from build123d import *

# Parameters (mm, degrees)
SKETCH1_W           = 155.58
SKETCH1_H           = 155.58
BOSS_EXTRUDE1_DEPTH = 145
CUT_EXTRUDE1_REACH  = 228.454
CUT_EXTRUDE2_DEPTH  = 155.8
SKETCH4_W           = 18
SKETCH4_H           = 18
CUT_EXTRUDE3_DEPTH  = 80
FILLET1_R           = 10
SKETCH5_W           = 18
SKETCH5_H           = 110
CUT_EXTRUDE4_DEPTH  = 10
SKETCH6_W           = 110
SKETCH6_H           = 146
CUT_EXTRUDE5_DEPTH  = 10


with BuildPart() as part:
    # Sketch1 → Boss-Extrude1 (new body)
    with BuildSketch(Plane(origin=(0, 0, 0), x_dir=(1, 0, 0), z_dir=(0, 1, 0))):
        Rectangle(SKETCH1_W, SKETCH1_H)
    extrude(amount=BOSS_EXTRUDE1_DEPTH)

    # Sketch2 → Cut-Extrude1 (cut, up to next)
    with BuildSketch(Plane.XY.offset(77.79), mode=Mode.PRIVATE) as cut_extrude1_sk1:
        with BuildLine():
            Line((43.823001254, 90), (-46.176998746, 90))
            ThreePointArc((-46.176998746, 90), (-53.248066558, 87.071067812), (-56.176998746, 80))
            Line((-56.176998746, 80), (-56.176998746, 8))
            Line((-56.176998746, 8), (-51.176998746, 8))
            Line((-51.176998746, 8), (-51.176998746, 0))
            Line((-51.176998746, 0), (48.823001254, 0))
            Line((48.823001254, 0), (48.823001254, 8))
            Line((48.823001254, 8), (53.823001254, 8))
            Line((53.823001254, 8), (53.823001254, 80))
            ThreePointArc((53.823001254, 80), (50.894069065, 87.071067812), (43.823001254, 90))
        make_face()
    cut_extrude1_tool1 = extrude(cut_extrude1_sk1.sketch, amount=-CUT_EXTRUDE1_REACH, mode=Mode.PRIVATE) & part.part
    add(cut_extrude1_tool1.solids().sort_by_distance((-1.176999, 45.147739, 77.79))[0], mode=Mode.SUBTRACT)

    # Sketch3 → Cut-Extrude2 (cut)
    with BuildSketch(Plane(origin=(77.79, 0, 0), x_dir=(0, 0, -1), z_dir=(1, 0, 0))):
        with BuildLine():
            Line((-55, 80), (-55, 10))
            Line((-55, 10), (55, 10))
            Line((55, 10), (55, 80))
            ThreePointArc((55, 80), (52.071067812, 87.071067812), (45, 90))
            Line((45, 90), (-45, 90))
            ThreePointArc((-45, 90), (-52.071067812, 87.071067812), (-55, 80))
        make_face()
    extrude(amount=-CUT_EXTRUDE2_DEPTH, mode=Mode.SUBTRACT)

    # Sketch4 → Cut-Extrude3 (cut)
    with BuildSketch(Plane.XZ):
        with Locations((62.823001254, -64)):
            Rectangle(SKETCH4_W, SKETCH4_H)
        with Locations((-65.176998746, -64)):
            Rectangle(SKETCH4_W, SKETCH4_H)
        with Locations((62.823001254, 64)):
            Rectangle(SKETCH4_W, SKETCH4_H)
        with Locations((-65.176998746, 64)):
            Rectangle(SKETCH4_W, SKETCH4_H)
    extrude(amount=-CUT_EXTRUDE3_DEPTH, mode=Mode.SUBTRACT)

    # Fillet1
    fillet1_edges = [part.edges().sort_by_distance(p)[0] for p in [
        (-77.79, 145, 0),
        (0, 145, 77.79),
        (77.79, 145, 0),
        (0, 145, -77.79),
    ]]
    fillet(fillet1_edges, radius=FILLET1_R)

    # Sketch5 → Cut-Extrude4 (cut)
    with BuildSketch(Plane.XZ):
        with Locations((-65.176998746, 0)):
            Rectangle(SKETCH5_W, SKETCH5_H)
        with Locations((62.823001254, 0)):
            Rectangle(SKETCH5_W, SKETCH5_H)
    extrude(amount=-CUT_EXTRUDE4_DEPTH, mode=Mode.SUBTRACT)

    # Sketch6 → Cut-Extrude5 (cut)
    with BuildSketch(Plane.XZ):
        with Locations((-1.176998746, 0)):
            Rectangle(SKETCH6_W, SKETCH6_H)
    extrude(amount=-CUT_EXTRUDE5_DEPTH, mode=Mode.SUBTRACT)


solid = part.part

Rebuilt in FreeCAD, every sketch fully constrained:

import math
import FreeCAD as App
import Part
import Sketcher
from FreeCAD import Vector
Q = App.Units.Quantity


def edges_at(feature, points):
    """Names of the edges that pass closest to the given points."""
    edges = feature.Shape.Edges
    near = lambda p: min(range(len(edges)), key=lambda i: edges[i].distToShape(Part.Vertex(*p))[0])
    return sorted({f"Edge{near(p) + 1}" for p in points})

doc = App.newDocument("Part")
body = doc.addObject("PartDesign::Body", "Body")

sketch1 = body.newObject("Sketcher::SketchObject", "Sketch")
sketch1.AttachmentSupport = (doc.getObject("XZ_Plane"), [""])
sketch1.MapMode = "FlatFace"
sketch1.addGeometry([
    Part.LineSegment(Vector(-78, -78, 0), Vector(-78, 78, 0)),
    Part.LineSegment(Vector(-78, 78, 0), Vector(78, 78, 0)),
    Part.LineSegment(Vector(78, 78, 0), Vector(78, -78, 0)),
    Part.LineSegment(Vector(78, -78, 0), Vector(-78, -78, 0)),
], False)
sketch1.addConstraint([
    Sketcher.Constraint("Coincident", 0, 2, 1, 1),
    Sketcher.Constraint("Coincident", 1, 2, 2, 1),
    Sketcher.Constraint("Coincident", 2, 2, 3, 1),
    Sketcher.Constraint("Coincident", 3, 2, 0, 1),
    Sketcher.Constraint("Vertical", 0),
    Sketcher.Constraint("Horizontal", 1),
    Sketcher.Constraint("Vertical", 2),
    Sketcher.Constraint("Horizontal", 3),
    Sketcher.Constraint("Symmetric", 0, 2, 2, 2, -1, 1),
    Sketcher.Constraint("Equal", 3, 0),
    Sketcher.Constraint("DistanceX", 1, 1, 1, 2, Q("155.58 mm")),
])
pad1 = body.newObject("PartDesign::Pad", "Pad")
pad1.Profile = sketch1
pad1.Length = 145
pad1.Reversed = True

sketch2 = body.newObject("Sketcher::SketchObject", "Sketch001")
sketch2.AttachmentSupport = (doc.getObject("XY_Plane"), [""])
sketch2.MapMode = "FlatFace"
sketch2.AttachmentOffset = App.Placement(Vector(0, 0, 77.79), App.Rotation())
sketch2.addGeometry([
    Part.LineSegment(Vector(44, 90, 0), Vector(-46, 90, 0)),
    Part.ArcOfCircle(Part.Circle(Vector(-46, 80, 0), Vector(0, 0, 1), 10), math.radians(90), math.radians(180)),
    Part.LineSegment(Vector(-56, 80, 0), Vector(-56, 8, 0)),
    Part.LineSegment(Vector(-56, 8, 0), Vector(-51, 8, 0)),
    Part.LineSegment(Vector(-51, 8, 0), Vector(-51, 0, 0)),
    Part.LineSegment(Vector(-51, 0, 0), Vector(49, 0, 0)),
    Part.LineSegment(Vector(49, 0, 0), Vector(49, 8, 0)),
    Part.LineSegment(Vector(49, 8, 0), Vector(54, 8, 0)),
    Part.LineSegment(Vector(54, 8, 0), Vector(54, 80, 0)),
    Part.ArcOfCircle(Part.Circle(Vector(44, 80, 0), Vector(0, 0, 1), 10), math.radians(0), math.radians(90)),
], False)
sketch2.addConstraint([
    Sketcher.Constraint("Tangent", 0, 2, 1, 1),
    Sketcher.Constraint("Tangent", 1, 2, 2, 1),
    Sketcher.Constraint("Coincident", 2, 2, 3, 1),
    Sketcher.Constraint("Coincident", 3, 2, 4, 1),
    Sketcher.Constraint("Coincident", 4, 2, 5, 1),
    Sketcher.Constraint("Coincident", 5, 2, 6, 1),
    Sketcher.Constraint("Coincident", 6, 2, 7, 1),
    Sketcher.Constraint("Coincident", 7, 2, 8, 1),
    Sketcher.Constraint("Tangent", 8, 2, 9, 1),
    Sketcher.Constraint("Tangent", 9, 2, 0, 1),
    Sketcher.Constraint("Horizontal", 0),
    Sketcher.Constraint("Vertical", 2),
    Sketcher.Constraint("Horizontal", 3),
    Sketcher.Constraint("Vertical", 4),
    Sketcher.Constraint("Horizontal", 5),
    Sketcher.Constraint("Vertical", 6),
    Sketcher.Constraint("Horizontal", 7),
    Sketcher.Constraint("Vertical", 8),
    Sketcher.Constraint("Equal", 1, 9),
    Sketcher.Constraint("PointOnObject", 4, 2, -1),
    Sketcher.Constraint("Horizontal", 3, 2, 6, 2),
    Sketcher.Constraint("Equal", 3, 7),
    Sketcher.Constraint("Radius", 1, Q("10 mm")),
    Sketcher.Constraint("DistanceX", 0, 2, 0, 1, Q("90 mm")),
    Sketcher.Constraint("DistanceX", 3, 1, 3, 2, Q("5 mm")),
    Sketcher.Constraint("DistanceY", 2, 2, 2, 1, Q("72 mm")),
    Sketcher.Constraint("DistanceY", 4, 2, 4, 1, Q("8 mm")),
    Sketcher.Constraint("DistanceX", 1, 3, -1, 1, Q("46.176999 mm")),
])
pocket1 = body.newObject("PartDesign::Pocket", "Pocket")
pocket1.Profile = sketch2
pocket1.Type = "UpToFirst"

sketch3 = body.newObject("Sketcher::SketchObject", "Sketch002")
sketch3.AttachmentSupport = (doc.getObject("YZ_Plane"), [""])
sketch3.MapMode = "FlatFace"
sketch3.AttachmentOffset = App.Placement(Vector(0, 0, 77.79), App.Rotation())
sketch3.addGeometry([
    Part.LineSegment(Vector(80, 55, 0), Vector(10, 55, 0)),
    Part.LineSegment(Vector(10, 55, 0), Vector(10, -55, 0)),
    Part.LineSegment(Vector(10, -55, 0), Vector(80, -55, 0)),
    Part.ArcOfCircle(Part.Circle(Vector(80, -45, 0), Vector(0, 0, 1), 10), math.radians(-90), math.radians(0)),
    Part.LineSegment(Vector(90, -45, 0), Vector(90, 45, 0)),
    Part.ArcOfCircle(Part.Circle(Vector(80, 45, 0), Vector(0, 0, 1), 10), math.radians(0), math.radians(90)),
], False)
sketch3.addConstraint([
    Sketcher.Constraint("Coincident", 0, 2, 1, 1),
    Sketcher.Constraint("Coincident", 1, 2, 2, 1),
    Sketcher.Constraint("Tangent", 2, 2, 3, 1),
    Sketcher.Constraint("Tangent", 3, 2, 4, 1),
    Sketcher.Constraint("Tangent", 4, 2, 5, 1),
    Sketcher.Constraint("Tangent", 5, 2, 0, 1),
    Sketcher.Constraint("Horizontal", 0),
    Sketcher.Constraint("Vertical", 1),
    Sketcher.Constraint("Horizontal", 2),
    Sketcher.Constraint("Vertical", 4),
    Sketcher.Constraint("Equal", 3, 5),
    Sketcher.Constraint("Radius", 3, Q("10 mm")),
    Sketcher.Constraint("DistanceX", 0, 2, 0, 1, Q("70 mm")),
    Sketcher.Constraint("DistanceY", 1, 2, 1, 1, Q("110 mm")),
    Sketcher.Constraint("DistanceX", -1, 1, 3, 3, Q("80 mm")),
    Sketcher.Constraint("DistanceY", 3, 3, -1, 1, Q("45 mm")),
])
pocket2 = body.newObject("PartDesign::Pocket", "Pocket001")
pocket2.Profile = sketch3
pocket2.Length = 155.8

sketch4 = body.newObject("Sketcher::SketchObject", "Sketch003")
sketch4.AttachmentSupport = (doc.getObject("XZ_Plane"), [""])
sketch4.MapMode = "FlatFace"
sketch4.addGeometry([
    Part.LineSegment(Vector(54, -55, 0), Vector(54, -73, 0)),
    Part.LineSegment(Vector(54, -73, 0), Vector(72, -73, 0)),
    Part.LineSegment(Vector(72, -73, 0), Vector(72, -55, 0)),
    Part.LineSegment(Vector(72, -55, 0), Vector(54, -55, 0)),
    Part.LineSegment(Vector(-74, -55, 0), Vector(-74, -73, 0)),
    Part.LineSegment(Vector(-74, -73, 0), Vector(-56, -73, 0)),
    Part.LineSegment(Vector(-56, -73, 0), Vector(-56, -55, 0)),
    Part.LineSegment(Vector(-56, -55, 0), Vector(-74, -55, 0)),
    Part.LineSegment(Vector(54, 73, 0), Vector(54, 55, 0)),
    Part.LineSegment(Vector(54, 55, 0), Vector(72, 55, 0)),
    Part.LineSegment(Vector(72, 55, 0), Vector(72, 73, 0)),
    Part.LineSegment(Vector(72, 73, 0), Vector(54, 73, 0)),
    Part.LineSegment(Vector(-74, 73, 0), Vector(-74, 55, 0)),
    Part.LineSegment(Vector(-74, 55, 0), Vector(-56, 55, 0)),
    Part.LineSegment(Vector(-56, 55, 0), Vector(-56, 73, 0)),
    Part.LineSegment(Vector(-56, 73, 0), Vector(-74, 73, 0)),
], False)
sketch4.addConstraint([
    Sketcher.Constraint("Coincident", 0, 2, 1, 1),
    Sketcher.Constraint("Coincident", 1, 2, 2, 1),
    Sketcher.Constraint("Coincident", 2, 2, 3, 1),
    Sketcher.Constraint("Coincident", 3, 2, 0, 1),
    Sketcher.Constraint("Coincident", 4, 2, 5, 1),
    Sketcher.Constraint("Coincident", 5, 2, 6, 1),
    Sketcher.Constraint("Coincident", 6, 2, 7, 1),
    Sketcher.Constraint("Coincident", 7, 2, 4, 1),
    Sketcher.Constraint("Coincident", 8, 2, 9, 1),
    Sketcher.Constraint("Coincident", 9, 2, 10, 1),
    Sketcher.Constraint("Coincident", 10, 2, 11, 1),
    Sketcher.Constraint("Coincident", 11, 2, 8, 1),
    Sketcher.Constraint("Coincident", 12, 2, 13, 1),
    Sketcher.Constraint("Coincident", 13, 2, 14, 1),
    Sketcher.Constraint("Coincident", 14, 2, 15, 1),
    Sketcher.Constraint("Coincident", 15, 2, 12, 1),
    Sketcher.Constraint("Vertical", 0),
    Sketcher.Constraint("Horizontal", 1),
    Sketcher.Constraint("Vertical", 2),
    Sketcher.Constraint("Horizontal", 3),
    Sketcher.Constraint("Vertical", 4),
    Sketcher.Constraint("Horizontal", 5),
    Sketcher.Constraint("Vertical", 6),
    Sketcher.Constraint("Horizontal", 7),
    Sketcher.Constraint("Vertical", 8),
    Sketcher.Constraint("Horizontal", 9),
    Sketcher.Constraint("Vertical", 10),
    Sketcher.Constraint("Horizontal", 11),
    Sketcher.Constraint("Vertical", 12),
    Sketcher.Constraint("Horizontal", 13),
    Sketcher.Constraint("Vertical", 14),
    Sketcher.Constraint("Horizontal", 15),
    Sketcher.Constraint("Symmetric", 3, 2, 8, 2, -1),
    Sketcher.Constraint("Symmetric", 1, 2, 10, 2, -1),
    Sketcher.Constraint("Symmetric", 7, 2, 12, 2, -1),
    Sketcher.Constraint("Symmetric", 5, 2, 14, 2, -1),
    Sketcher.Constraint("Horizontal", 1, 2, 4, 2),
    Sketcher.Constraint("Horizontal", 3, 2, 6, 2),
    Sketcher.Constraint("Equal", 3, 5),
    Sketcher.Constraint("Equal", 15, 0),
    Sketcher.Constraint("DistanceX", 1, 1, 1, 2, Q("18 mm")),
    Sketcher.Constraint("DistanceY", 0, 2, -1, 1, Q("73 mm")),
    Sketcher.Constraint("DistanceX", 4, 2, 0, 2, Q("128 mm")),
    Sketcher.Constraint("DistanceX", -1, 1, 0, 2, Q("53.823001 mm")),
])
pocket3 = body.newObject("PartDesign::Pocket", "Pocket002")
pocket3.Profile = sketch4
pocket3.Length = 80
doc.recompute()

fillet = body.newObject("PartDesign::Fillet", "Fillet")
fillet.Base = (pocket3, edges_at(pocket3, [
    (-77.79, 145, 0),
    (0, 145, 77.79),
    (77.79, 145, 0),
    (0, 145, -77.79),
]))
fillet.Radius = 10

sketch5 = body.newObject("Sketcher::SketchObject", "Sketch004")
sketch5.AttachmentSupport = (doc.getObject("XZ_Plane"), [""])
sketch5.MapMode = "FlatFace"
sketch5.addGeometry([
    Part.LineSegment(Vector(-74, 55, 0), Vector(-74, -55, 0)),
    Part.LineSegment(Vector(-74, -55, 0), Vector(-56, -55, 0)),
    Part.LineSegment(Vector(-56, -55, 0), Vector(-56, 55, 0)),
    Part.LineSegment(Vector(-56, 55, 0), Vector(-74, 55, 0)),
    Part.LineSegment(Vector(54, 55, 0), Vector(54, -55, 0)),
    Part.LineSegment(Vector(54, -55, 0), Vector(72, -55, 0)),
    Part.LineSegment(Vector(72, -55, 0), Vector(72, 55, 0)),
    Part.LineSegment(Vector(72, 55, 0), Vector(54, 55, 0)),
], False)
sketch5.addConstraint([
    Sketcher.Constraint("Coincident", 0, 2, 1, 1),
    Sketcher.Constraint("Coincident", 1, 2, 2, 1),
    Sketcher.Constraint("Coincident", 2, 2, 3, 1),
    Sketcher.Constraint("Coincident", 3, 2, 0, 1),
    Sketcher.Constraint("Coincident", 4, 2, 5, 1),
    Sketcher.Constraint("Coincident", 5, 2, 6, 1),
    Sketcher.Constraint("Coincident", 6, 2, 7, 1),
    Sketcher.Constraint("Coincident", 7, 2, 4, 1),
    Sketcher.Constraint("Vertical", 0),
    Sketcher.Constraint("Horizontal", 1),
    Sketcher.Constraint("Vertical", 2),
    Sketcher.Constraint("Horizontal", 3),
    Sketcher.Constraint("Vertical", 4),
    Sketcher.Constraint("Horizontal", 5),
    Sketcher.Constraint("Vertical", 6),
    Sketcher.Constraint("Horizontal", 7),
    Sketcher.Constraint("Horizontal", 1, 2, 4, 2),
    Sketcher.Constraint("Horizontal", 3, 2, 6, 2),
    Sketcher.Constraint("Equal", 3, 5),
    Sketcher.Constraint("DistanceX", 1, 1, 1, 2, Q("18 mm")),
    Sketcher.Constraint("DistanceY", 0, 2, 0, 1, Q("110 mm")),
    Sketcher.Constraint("DistanceY", 0, 2, -1, 1, Q("55 mm")),
    Sketcher.Constraint("DistanceX", 1, 2, 4, 2, Q("110 mm")),
    Sketcher.Constraint("DistanceX", 0, 2, -1, 1, Q("74.176999 mm")),
])
pocket4 = body.newObject("PartDesign::Pocket", "Pocket003")
pocket4.Profile = sketch5
pocket4.Length = 10

sketch6 = body.newObject("Sketcher::SketchObject", "Sketch005")
sketch6.AttachmentSupport = (doc.getObject("XZ_Plane"), [""])
sketch6.MapMode = "FlatFace"
sketch6.addGeometry([
    Part.LineSegment(Vector(-56, 73, 0), Vector(-56, -73, 0)),
    Part.LineSegment(Vector(-56, -73, 0), Vector(54, -73, 0)),
    Part.LineSegment(Vector(54, -73, 0), Vector(54, 73, 0)),
    Part.LineSegment(Vector(54, 73, 0), Vector(-56, 73, 0)),
], False)
sketch6.addConstraint([
    Sketcher.Constraint("Coincident", 0, 2, 1, 1),
    Sketcher.Constraint("Coincident", 1, 2, 2, 1),
    Sketcher.Constraint("Coincident", 2, 2, 3, 1),
    Sketcher.Constraint("Coincident", 3, 2, 0, 1),
    Sketcher.Constraint("Vertical", 0),
    Sketcher.Constraint("Horizontal", 1),
    Sketcher.Constraint("Vertical", 2),
    Sketcher.Constraint("Horizontal", 3),
    Sketcher.Constraint("DistanceX", 1, 1, 1, 2, Q("110 mm")),
    Sketcher.Constraint("DistanceY", 0, 2, 0, 1, Q("146 mm")),
    Sketcher.Constraint("DistanceY", 0, 2, -1, 1, Q("73 mm")),
    Sketcher.Constraint("DistanceX", 0, 2, -1, 1, Q("56.176999 mm")),
])
pocket5 = body.newObject("PartDesign::Pocket", "Pocket004")
pocket5.Profile = sketch6
pocket5.Length = 10

doc.recompute()
